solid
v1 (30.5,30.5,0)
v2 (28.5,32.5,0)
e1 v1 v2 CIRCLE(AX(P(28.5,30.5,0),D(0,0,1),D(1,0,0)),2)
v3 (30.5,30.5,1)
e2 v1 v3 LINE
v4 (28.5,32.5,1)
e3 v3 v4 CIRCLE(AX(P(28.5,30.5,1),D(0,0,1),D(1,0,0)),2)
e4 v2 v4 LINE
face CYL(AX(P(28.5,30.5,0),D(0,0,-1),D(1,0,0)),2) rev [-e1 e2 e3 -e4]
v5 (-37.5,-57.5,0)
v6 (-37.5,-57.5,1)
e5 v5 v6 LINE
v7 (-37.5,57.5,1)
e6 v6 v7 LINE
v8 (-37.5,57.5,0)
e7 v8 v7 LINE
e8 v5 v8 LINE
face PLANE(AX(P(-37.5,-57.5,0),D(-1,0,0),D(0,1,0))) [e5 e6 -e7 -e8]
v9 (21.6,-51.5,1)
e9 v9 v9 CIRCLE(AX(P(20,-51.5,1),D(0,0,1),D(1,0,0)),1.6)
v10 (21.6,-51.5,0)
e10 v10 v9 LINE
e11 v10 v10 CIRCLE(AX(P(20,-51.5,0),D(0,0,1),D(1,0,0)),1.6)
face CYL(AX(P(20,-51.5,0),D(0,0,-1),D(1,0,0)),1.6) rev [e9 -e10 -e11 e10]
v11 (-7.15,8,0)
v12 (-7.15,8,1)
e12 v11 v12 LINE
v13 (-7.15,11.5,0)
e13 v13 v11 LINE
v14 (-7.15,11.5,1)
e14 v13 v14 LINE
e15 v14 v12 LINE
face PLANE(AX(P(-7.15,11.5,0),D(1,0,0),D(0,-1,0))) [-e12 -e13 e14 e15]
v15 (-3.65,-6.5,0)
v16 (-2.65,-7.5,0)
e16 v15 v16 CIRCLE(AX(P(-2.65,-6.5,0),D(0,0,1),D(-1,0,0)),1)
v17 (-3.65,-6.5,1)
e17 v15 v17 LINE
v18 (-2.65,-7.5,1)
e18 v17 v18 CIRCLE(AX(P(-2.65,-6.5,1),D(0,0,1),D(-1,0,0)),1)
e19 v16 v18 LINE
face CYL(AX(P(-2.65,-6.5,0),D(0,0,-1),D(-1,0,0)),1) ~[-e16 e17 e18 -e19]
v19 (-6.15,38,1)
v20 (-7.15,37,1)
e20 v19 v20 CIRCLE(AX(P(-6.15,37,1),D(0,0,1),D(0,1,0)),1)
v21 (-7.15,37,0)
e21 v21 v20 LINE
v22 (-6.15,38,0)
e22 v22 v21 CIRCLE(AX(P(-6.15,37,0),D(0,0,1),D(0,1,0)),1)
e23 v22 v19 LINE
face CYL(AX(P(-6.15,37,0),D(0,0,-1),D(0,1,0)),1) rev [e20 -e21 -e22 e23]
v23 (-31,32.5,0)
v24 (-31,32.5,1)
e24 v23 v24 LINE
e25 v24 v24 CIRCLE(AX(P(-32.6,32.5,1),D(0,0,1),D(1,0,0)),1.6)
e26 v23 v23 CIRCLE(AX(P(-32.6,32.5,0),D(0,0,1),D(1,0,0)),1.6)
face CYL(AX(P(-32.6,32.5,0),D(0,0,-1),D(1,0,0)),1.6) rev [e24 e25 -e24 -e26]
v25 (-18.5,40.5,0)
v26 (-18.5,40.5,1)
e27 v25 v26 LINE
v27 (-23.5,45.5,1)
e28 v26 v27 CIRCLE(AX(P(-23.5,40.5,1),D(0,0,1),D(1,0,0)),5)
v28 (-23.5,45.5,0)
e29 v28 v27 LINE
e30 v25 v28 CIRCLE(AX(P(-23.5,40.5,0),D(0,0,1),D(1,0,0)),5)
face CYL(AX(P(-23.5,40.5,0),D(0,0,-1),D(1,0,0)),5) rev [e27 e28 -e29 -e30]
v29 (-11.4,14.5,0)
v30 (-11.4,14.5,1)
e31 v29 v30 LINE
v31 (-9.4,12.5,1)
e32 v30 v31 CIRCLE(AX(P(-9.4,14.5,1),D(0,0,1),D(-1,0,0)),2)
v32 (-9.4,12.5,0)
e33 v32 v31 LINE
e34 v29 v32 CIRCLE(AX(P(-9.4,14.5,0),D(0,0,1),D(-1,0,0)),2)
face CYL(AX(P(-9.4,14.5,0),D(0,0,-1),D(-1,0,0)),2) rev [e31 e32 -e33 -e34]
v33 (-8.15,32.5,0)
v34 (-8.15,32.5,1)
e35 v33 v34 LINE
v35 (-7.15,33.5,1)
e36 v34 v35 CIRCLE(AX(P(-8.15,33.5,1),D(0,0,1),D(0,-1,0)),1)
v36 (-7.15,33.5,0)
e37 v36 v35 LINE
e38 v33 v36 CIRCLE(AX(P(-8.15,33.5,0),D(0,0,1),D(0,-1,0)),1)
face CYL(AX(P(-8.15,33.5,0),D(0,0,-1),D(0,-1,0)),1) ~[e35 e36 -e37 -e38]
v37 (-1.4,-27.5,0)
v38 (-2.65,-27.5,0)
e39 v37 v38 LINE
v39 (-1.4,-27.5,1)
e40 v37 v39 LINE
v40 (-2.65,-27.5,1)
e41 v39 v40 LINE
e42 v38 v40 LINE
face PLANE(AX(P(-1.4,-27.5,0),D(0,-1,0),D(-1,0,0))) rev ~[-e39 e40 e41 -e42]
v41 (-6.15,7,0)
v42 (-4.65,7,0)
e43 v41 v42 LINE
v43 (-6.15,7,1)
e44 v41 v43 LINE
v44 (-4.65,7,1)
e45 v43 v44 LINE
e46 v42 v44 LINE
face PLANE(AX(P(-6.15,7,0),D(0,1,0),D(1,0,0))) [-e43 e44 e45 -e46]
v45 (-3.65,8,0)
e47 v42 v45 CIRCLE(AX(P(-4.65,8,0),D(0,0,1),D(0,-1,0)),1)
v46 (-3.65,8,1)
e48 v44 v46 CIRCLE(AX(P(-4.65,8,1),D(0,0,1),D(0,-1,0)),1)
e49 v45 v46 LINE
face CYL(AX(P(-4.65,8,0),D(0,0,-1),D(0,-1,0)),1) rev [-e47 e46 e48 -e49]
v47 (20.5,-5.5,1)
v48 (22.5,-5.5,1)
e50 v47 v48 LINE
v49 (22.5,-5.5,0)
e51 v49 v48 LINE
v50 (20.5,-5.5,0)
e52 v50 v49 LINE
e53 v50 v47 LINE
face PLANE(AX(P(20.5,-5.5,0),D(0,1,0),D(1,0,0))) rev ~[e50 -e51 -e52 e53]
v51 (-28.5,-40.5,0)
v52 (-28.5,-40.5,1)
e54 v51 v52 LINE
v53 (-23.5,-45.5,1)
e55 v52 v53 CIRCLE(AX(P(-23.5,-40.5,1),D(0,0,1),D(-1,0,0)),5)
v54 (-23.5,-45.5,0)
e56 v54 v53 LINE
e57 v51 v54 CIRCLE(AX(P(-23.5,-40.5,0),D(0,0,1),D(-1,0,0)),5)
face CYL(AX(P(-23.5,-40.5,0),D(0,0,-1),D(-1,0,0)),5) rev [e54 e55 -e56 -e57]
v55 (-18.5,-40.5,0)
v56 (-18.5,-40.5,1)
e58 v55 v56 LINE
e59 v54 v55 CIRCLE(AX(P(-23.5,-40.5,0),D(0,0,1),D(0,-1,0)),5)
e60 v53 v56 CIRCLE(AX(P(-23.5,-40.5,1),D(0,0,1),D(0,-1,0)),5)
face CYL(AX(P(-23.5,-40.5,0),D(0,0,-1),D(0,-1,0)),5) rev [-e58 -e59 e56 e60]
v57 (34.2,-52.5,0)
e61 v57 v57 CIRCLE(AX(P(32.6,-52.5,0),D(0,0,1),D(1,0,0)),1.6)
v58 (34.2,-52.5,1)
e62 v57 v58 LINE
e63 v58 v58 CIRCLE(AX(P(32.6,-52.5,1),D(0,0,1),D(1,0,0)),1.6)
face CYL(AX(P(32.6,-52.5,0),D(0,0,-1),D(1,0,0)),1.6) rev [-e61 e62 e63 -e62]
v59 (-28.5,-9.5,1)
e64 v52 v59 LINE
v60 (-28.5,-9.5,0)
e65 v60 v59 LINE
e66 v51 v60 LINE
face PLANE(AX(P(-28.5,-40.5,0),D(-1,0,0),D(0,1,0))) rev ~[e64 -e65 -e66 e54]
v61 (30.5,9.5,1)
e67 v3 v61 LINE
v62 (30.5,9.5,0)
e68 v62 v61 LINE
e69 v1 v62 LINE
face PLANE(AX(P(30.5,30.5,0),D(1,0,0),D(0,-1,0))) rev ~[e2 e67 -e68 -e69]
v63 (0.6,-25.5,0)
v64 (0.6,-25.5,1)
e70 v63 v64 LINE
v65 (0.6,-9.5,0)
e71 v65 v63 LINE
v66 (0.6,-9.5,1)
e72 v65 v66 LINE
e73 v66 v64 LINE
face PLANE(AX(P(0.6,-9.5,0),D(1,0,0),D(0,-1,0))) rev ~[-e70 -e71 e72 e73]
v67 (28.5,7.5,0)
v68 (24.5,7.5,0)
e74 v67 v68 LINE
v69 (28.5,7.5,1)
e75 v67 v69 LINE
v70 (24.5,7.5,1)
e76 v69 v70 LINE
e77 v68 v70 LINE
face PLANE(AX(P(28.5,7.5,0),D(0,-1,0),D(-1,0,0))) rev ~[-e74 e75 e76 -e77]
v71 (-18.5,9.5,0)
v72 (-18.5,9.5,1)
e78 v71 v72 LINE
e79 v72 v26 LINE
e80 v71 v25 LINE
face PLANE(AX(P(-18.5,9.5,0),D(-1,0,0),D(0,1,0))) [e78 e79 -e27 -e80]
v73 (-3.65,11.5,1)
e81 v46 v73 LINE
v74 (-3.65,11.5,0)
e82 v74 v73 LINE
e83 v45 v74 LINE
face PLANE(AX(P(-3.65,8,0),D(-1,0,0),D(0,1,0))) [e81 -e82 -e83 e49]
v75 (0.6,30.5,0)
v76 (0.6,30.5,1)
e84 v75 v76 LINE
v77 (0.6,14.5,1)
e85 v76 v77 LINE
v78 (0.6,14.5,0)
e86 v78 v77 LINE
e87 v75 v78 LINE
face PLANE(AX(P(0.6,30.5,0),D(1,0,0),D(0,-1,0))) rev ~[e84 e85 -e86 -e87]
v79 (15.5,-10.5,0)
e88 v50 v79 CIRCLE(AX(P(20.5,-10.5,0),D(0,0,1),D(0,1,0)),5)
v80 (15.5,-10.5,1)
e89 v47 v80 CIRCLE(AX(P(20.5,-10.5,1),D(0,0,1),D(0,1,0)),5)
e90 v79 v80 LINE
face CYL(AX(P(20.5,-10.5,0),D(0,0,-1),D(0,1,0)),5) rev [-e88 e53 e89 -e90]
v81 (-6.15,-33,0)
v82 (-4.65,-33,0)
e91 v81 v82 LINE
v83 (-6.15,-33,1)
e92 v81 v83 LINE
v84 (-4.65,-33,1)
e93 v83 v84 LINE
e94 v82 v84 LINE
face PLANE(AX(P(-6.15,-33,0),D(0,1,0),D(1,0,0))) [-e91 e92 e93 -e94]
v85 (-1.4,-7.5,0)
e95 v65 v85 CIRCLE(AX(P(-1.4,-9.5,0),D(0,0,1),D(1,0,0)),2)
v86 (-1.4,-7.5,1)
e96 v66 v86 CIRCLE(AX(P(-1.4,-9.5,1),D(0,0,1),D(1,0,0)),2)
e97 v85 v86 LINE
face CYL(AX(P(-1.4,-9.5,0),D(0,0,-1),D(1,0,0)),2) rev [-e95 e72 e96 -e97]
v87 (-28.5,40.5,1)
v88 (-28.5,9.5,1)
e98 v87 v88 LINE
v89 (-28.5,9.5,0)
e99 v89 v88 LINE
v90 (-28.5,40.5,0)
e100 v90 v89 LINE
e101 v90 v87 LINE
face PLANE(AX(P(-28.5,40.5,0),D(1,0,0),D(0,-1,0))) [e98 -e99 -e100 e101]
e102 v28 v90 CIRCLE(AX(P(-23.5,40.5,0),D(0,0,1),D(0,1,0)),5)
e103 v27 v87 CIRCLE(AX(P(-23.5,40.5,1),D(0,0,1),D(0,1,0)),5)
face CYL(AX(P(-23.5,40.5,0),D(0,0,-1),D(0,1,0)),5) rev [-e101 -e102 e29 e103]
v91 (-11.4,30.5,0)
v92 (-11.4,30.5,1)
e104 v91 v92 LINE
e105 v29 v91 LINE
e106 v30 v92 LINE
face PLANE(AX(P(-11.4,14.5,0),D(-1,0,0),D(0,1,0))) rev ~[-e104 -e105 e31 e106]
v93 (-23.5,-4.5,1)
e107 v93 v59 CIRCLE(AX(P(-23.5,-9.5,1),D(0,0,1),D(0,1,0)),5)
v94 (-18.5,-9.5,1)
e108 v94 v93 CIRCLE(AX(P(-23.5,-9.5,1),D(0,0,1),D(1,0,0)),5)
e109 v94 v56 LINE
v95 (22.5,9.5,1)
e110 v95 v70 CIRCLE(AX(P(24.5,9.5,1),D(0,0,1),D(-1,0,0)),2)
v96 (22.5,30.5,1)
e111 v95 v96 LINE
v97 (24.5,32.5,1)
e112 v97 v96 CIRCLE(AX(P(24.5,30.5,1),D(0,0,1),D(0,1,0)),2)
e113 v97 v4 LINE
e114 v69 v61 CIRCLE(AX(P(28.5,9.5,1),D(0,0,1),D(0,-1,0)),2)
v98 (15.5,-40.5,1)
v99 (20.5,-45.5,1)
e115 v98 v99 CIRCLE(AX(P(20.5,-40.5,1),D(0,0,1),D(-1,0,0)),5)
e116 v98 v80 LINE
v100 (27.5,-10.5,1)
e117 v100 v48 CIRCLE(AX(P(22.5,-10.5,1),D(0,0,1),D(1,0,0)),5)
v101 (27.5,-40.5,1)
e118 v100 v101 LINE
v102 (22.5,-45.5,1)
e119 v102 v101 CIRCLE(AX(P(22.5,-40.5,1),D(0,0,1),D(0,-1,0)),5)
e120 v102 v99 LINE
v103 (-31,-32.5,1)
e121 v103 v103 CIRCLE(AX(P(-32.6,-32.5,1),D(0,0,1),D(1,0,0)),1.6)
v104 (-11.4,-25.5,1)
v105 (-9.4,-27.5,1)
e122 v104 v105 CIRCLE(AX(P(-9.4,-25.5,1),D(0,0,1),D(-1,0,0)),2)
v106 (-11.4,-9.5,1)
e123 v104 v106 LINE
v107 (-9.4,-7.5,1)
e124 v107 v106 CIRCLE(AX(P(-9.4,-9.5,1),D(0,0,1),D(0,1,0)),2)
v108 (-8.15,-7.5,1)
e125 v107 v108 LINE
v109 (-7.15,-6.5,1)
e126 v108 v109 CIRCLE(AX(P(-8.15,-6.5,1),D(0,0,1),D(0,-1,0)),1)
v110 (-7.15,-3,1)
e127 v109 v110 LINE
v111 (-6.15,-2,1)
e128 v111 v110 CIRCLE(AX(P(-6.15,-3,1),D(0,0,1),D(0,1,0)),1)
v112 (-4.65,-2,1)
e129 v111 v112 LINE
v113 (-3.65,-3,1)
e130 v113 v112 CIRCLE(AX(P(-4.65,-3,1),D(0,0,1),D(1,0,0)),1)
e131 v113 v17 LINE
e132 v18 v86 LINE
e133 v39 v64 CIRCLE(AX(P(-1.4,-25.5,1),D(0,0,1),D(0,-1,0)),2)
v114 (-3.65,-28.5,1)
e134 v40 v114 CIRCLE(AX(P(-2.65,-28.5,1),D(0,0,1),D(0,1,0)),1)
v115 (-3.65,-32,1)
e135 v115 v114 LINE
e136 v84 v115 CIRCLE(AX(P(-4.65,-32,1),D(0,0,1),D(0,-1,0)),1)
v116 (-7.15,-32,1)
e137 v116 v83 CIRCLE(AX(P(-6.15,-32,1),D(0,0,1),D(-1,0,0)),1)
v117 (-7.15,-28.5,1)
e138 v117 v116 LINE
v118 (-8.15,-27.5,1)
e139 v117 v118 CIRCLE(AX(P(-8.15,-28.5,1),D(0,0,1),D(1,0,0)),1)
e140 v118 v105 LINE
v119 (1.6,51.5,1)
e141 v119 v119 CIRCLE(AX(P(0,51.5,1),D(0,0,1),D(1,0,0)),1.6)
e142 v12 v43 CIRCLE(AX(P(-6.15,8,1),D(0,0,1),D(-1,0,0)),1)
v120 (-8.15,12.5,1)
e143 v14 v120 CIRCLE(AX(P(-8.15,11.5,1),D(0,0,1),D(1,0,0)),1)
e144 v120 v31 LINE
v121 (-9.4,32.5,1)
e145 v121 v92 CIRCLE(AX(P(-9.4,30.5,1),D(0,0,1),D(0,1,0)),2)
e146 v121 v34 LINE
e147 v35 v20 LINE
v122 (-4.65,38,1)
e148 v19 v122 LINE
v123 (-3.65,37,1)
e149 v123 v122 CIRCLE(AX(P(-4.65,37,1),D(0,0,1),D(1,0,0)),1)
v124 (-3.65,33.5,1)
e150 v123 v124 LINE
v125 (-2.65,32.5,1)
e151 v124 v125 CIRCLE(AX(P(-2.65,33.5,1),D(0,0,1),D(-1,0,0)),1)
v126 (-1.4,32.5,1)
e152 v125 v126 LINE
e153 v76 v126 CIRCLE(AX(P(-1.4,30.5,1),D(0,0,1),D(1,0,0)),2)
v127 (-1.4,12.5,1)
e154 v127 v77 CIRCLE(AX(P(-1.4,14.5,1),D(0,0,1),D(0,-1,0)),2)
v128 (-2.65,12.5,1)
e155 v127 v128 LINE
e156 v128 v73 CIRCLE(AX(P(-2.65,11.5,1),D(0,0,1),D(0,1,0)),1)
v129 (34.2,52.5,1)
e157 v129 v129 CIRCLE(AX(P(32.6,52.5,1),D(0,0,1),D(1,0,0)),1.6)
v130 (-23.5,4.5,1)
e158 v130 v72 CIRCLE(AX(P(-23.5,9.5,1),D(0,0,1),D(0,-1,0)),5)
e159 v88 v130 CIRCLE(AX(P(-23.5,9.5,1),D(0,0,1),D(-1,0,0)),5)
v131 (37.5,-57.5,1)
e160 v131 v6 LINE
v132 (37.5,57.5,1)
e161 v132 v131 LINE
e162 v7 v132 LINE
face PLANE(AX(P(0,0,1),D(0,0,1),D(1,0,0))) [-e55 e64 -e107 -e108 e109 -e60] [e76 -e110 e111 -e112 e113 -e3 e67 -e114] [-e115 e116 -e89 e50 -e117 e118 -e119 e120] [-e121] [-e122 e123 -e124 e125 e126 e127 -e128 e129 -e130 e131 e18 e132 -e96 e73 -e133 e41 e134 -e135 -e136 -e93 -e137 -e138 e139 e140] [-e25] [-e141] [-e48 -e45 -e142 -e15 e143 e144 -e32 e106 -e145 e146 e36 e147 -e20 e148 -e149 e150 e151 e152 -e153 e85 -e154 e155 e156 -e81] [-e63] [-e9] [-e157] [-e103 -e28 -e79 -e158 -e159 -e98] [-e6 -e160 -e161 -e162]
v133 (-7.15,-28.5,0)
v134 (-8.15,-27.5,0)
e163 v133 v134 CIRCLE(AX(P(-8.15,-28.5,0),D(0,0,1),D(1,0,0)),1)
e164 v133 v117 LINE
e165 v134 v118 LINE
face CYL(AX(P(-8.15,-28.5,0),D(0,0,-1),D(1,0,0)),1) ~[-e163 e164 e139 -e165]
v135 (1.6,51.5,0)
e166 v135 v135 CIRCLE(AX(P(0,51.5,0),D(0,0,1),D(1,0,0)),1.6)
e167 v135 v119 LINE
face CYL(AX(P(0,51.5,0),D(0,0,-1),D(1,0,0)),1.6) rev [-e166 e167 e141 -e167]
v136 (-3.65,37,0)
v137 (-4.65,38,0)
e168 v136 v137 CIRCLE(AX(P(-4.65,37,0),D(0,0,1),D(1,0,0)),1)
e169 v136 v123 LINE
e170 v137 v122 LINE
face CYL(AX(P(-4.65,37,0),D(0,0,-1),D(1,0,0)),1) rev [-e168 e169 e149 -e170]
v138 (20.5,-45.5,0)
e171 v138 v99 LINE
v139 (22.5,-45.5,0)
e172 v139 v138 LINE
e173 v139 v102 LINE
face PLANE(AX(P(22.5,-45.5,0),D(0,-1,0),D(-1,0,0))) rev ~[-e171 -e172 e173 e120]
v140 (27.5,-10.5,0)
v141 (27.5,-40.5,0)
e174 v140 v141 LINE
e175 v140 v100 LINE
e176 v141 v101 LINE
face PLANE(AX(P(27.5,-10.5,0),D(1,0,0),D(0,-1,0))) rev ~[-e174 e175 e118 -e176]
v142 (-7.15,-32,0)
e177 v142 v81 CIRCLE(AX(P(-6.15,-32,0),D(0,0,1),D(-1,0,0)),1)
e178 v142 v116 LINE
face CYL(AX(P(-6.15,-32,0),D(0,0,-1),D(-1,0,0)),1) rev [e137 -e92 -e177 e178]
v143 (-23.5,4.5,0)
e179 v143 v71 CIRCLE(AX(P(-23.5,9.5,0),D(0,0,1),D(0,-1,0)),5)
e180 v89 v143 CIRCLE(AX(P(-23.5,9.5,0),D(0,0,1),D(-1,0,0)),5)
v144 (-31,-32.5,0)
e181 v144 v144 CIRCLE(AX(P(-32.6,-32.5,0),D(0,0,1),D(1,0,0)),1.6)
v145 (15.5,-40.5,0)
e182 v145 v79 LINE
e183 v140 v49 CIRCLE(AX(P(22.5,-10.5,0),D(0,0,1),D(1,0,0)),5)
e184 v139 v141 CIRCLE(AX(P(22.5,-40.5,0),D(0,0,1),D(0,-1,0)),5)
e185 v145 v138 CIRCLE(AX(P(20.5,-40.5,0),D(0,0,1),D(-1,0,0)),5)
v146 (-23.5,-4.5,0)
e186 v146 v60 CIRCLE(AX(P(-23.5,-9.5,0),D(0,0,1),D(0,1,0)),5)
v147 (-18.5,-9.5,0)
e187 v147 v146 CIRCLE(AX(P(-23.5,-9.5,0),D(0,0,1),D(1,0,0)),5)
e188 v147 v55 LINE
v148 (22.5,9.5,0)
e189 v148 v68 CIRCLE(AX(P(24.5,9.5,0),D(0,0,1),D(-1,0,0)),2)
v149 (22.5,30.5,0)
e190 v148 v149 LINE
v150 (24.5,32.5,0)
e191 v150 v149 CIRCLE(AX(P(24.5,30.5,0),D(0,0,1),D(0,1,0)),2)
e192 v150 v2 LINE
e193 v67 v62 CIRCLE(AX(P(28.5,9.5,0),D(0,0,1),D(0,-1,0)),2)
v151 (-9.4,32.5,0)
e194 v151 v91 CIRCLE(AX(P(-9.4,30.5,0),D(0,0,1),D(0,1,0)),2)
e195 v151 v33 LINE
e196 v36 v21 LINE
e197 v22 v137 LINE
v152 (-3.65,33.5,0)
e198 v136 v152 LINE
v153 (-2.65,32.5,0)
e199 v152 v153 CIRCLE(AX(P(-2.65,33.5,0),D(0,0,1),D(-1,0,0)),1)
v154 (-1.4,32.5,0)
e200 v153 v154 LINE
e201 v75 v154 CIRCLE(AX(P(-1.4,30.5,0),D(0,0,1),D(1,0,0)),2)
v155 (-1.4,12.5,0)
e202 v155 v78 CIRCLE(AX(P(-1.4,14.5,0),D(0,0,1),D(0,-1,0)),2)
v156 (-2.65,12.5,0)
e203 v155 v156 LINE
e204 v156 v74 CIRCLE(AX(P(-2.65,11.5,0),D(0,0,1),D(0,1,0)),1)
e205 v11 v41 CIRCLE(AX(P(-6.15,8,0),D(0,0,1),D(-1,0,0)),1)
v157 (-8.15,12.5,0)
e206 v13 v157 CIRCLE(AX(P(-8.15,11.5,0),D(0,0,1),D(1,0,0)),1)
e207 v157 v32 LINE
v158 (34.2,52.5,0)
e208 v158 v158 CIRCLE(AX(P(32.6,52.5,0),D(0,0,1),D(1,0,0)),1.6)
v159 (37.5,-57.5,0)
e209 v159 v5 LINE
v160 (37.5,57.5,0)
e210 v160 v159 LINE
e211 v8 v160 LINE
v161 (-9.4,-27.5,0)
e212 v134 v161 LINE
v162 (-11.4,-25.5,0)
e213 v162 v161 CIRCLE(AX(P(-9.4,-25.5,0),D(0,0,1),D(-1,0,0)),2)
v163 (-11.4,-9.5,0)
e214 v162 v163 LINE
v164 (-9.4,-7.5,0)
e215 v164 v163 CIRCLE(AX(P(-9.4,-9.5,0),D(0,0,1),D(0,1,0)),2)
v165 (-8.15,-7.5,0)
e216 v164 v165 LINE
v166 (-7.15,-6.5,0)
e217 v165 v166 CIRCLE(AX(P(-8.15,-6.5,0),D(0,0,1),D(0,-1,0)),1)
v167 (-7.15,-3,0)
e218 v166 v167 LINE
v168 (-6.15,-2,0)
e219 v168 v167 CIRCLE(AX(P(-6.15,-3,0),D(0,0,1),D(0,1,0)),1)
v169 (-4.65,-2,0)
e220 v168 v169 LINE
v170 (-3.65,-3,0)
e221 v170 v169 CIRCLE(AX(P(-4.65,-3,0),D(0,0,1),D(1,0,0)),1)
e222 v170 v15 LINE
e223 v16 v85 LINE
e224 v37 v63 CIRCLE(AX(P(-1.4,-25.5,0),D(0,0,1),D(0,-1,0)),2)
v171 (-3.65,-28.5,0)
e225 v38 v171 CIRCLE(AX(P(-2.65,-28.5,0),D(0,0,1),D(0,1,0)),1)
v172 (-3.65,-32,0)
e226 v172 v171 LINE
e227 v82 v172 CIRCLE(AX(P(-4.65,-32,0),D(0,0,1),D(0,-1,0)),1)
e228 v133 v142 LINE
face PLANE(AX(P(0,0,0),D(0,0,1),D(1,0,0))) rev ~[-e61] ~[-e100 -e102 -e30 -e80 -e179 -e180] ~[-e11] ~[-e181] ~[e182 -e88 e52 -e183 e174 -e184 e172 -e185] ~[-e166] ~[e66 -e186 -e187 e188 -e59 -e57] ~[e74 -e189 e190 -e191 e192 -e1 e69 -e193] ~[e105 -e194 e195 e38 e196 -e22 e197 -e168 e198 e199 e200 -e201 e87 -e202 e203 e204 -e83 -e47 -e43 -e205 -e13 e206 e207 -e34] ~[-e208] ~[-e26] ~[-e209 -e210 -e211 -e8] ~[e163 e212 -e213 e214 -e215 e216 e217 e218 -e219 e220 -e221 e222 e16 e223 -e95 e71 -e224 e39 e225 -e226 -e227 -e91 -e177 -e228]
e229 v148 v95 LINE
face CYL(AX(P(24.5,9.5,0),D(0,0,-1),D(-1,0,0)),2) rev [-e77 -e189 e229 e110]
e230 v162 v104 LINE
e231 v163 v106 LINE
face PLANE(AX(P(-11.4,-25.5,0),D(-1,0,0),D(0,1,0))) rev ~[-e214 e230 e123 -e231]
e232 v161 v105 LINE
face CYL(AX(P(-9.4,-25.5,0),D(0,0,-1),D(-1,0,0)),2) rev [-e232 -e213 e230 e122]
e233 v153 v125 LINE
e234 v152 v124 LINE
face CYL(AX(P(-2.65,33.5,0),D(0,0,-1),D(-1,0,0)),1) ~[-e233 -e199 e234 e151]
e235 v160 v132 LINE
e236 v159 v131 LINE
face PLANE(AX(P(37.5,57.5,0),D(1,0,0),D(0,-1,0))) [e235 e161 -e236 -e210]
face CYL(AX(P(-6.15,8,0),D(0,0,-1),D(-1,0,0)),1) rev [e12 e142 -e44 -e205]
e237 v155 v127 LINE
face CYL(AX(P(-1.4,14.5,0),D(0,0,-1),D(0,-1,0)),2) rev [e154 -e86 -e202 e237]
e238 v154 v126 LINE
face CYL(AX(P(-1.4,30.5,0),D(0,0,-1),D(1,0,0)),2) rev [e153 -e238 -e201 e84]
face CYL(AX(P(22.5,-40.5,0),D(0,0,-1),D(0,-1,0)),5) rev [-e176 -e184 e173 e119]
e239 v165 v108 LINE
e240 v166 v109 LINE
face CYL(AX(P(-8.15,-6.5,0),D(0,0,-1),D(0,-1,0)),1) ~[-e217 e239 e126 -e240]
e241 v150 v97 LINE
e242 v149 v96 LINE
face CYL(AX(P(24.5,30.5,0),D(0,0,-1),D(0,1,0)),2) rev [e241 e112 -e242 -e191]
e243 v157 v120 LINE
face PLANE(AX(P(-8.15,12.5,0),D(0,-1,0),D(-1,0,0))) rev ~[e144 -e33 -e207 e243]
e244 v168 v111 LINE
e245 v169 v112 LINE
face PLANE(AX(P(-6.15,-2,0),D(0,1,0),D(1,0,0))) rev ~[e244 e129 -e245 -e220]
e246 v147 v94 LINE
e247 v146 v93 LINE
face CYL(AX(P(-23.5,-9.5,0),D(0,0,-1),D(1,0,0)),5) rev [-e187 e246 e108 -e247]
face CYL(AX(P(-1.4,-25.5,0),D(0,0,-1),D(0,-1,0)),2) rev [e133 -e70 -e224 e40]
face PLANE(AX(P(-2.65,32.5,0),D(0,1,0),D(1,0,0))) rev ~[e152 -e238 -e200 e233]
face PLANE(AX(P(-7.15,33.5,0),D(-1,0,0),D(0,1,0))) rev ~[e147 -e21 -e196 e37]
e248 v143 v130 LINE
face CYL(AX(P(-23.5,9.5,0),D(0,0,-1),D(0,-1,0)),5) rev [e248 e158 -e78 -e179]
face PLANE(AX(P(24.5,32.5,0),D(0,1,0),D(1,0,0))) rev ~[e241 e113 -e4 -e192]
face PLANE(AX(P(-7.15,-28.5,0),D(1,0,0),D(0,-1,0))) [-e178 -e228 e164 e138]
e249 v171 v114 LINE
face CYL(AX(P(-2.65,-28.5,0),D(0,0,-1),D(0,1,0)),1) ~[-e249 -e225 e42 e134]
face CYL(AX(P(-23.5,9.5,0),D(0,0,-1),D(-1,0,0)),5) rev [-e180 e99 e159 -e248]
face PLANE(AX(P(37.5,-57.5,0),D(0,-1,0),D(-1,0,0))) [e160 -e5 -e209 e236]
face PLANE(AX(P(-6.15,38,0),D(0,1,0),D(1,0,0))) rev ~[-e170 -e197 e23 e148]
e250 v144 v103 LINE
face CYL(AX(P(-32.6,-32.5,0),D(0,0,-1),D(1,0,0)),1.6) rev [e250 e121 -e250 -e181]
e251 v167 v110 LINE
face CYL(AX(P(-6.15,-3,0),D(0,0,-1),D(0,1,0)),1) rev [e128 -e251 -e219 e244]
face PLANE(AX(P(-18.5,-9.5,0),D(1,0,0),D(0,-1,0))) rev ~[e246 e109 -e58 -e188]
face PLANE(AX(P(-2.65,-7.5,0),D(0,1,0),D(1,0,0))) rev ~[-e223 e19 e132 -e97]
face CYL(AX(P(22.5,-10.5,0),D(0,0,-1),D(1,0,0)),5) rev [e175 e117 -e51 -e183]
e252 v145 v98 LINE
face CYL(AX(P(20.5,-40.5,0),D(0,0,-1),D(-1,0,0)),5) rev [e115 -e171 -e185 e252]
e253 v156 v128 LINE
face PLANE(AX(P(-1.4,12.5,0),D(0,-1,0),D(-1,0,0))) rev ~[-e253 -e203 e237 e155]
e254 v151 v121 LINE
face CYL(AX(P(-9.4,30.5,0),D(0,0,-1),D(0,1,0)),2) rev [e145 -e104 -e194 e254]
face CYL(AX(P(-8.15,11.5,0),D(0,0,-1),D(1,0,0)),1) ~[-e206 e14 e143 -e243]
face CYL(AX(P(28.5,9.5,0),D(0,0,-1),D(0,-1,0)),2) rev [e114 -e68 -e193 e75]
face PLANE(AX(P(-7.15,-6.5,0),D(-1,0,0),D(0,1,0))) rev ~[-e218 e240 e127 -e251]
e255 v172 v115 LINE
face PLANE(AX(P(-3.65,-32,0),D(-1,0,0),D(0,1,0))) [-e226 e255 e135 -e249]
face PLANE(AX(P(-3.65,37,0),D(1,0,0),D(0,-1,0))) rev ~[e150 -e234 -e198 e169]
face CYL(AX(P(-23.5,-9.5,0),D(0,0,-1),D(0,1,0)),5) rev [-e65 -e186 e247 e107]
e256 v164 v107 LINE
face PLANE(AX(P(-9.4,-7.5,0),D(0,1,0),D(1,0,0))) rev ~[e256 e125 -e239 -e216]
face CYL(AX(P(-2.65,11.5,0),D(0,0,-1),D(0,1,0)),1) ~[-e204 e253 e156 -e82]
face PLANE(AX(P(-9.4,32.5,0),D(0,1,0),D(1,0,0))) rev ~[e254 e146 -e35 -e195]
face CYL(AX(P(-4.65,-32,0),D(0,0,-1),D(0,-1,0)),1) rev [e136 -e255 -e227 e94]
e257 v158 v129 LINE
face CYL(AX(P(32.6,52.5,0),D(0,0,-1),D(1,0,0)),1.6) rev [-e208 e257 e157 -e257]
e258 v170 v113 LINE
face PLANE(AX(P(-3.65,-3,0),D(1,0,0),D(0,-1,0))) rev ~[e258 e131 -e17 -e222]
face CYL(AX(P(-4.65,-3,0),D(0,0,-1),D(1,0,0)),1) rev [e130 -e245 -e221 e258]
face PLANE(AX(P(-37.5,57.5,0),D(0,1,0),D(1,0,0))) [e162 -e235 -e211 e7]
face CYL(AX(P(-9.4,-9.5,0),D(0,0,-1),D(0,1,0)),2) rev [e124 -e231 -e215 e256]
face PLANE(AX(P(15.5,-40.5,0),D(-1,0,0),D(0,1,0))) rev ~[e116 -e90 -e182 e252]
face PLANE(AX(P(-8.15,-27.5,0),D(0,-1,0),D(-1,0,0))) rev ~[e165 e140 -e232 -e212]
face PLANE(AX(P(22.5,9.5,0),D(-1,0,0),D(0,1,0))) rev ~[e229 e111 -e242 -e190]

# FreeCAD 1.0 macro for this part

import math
import FreeCAD as App
import Part
import Sketcher
Q = App.Units.Quantity


def add_polygon(sketch, points):
    """Adds a closed chain of lines whose ends are joined by coincident constraints."""
    first, n = sketch.GeometryCount, len(points)
    for a, b in zip(points, points[1:] + points[:1]):
        sketch.addGeometry(Part.LineSegment(App.Vector(*a, 0), App.Vector(*b, 0)), False)
    for i in range(n):
        sketch.addConstraint(Sketcher.Constraint("Coincident", first + i, 2, first + (i + 1) % n, 1))

doc = App.newDocument("Part")
body = doc.addObject("PartDesign::Body", "Body")

# Sketch on XY plane
sketch1 = body.newObject("Sketcher::SketchObject", "Sketch")
sketch1.AttachmentSupport = (doc.getObject("XY_Plane"), [""])
sketch1.MapMode = "FlatFace"
add_polygon(sketch1, [(37.5, 57.5), (-37.5, 57.5), (-37.5, -57.5), (37.5, -57.5)])  # lines 0-3
sketch1.addGeometry(Part.Circle(App.Vector(-32.6, -32.5, 0), App.Vector(0, 0, 1), 1.6), False)  # 4
sketch1.addGeometry(Part.ArcOfCircle(Part.Circle(App.Vector(-23.5, -40.5, 0), App.Vector(0, 0, 1), 5), math.radians(180), math.radians(360)), False)  # 5
sketch1.addGeometry(Part.LineSegment(App.Vector(-28.5, -40.5, 0), App.Vector(-28.5, -9.5, 0)), False)  # 6
sketch1.addGeometry(Part.ArcOfCircle(Part.Circle(App.Vector(-23.5, -9.5, 0), App.Vector(0, 0, 1), 5), math.radians(0), math.radians(180)), False)  # 7
sketch1.addGeometry(Part.LineSegment(App.Vector(-18.5, -9.5, 0), App.Vector(-18.5, -40.5, 0)), False)  # 8
sketch1.addGeometry(Part.ArcOfCircle(Part.Circle(App.Vector(-1.4, -9.5, 0), App.Vector(0, 0, 1), 2), math.radians(0), math.radians(90)), False)  # 9
sketch1.addGeometry(Part.LineSegment(App.Vector(0.6, -9.5, 0), App.Vector(0.6, -25.5, 0)), False)  # 10
sketch1.addGeometry(Part.ArcOfCircle(Part.Circle(App.Vector(-1.4, -25.5, 0), App.Vector(0, 0, 1), 2), math.radians(-90), math.radians(0)), False)  # 11
sketch1.addGeometry(Part.LineSegment(App.Vector(-1.4, -27.5, 0), App.Vector(-2.65, -27.5, 0)), False)  # 12
sketch1.addGeometry(Part.ArcOfCircle(Part.Circle(App.Vector(-2.65, -28.5, 0), App.Vector(0, 0, 1), 1), math.radians(90), math.radians(180)), False)  # 13
sketch1.addGeometry(Part.LineSegment(App.Vector(-3.65, -28.5, 0), App.Vector(-3.65, -32, 0)), False)  # 14
sketch1.addGeometry(Part.ArcOfCircle(Part.Circle(App.Vector(-4.65, -32, 0), App.Vector(0, 0, 1), 1), math.radians(-90), math.radians(0)), False)  # 15
sketch1.addGeometry(Part.LineSegment(App.Vector(-4.65, -33, 0), App.Vector(-6.15, -33, 0)), False)  # 16
sketch1.addGeometry(Part.ArcOfCircle(Part.Circle(App.Vector(-6.15, -32, 0), App.Vector(0, 0, 1), 1), math.radians(180), math.radians(270)), False)  # 17
sketch1.addGeometry(Part.LineSegment(App.Vector(-7.15, -32, 0), App.Vector(-7.15, -28.5, 0)), False)  # 18
sketch1.addGeometry(Part.ArcOfCircle(Part.Circle(App.Vector(-8.15, -28.5, 0), App.Vector(0, 0, 1), 1), math.radians(0), math.radians(90)), False)  # 19
sketch1.addGeometry(Part.LineSegment(App.Vector(-8.15, -27.5, 0), App.Vector(-9.4, -27.5, 0)), False)  # 20
sketch1.addGeometry(Part.ArcOfCircle(Part.Circle(App.Vector(-9.4, -25.5, 0), App.Vector(0, 0, 1), 2), math.radians(180), math.radians(270)), False)  # 21
sketch1.addGeometry(Part.LineSegment(App.Vector(-11.4, -25.5, 0), App.Vector(-11.4, -9.5, 0)), False)  # 22
sketch1.addGeometry(Part.ArcOfCircle(Part.Circle(App.Vector(-9.4, -9.5, 0), App.Vector(0, 0, 1), 2), math.radians(90), math.radians(180)), False)  # 23
sketch1.addGeometry(Part.LineSegment(App.Vector(-9.4, -7.5, 0), App.Vector(-8.15, -7.5, 0)), False)  # 24
sketch1.addGeometry(Part.ArcOfCircle(Part.Circle(App.Vector(-8.15, -6.5, 0), App.Vector(0, 0, 1), 1), math.radians(-90), math.radians(0)), False)  # 25
sketch1.addGeometry(Part.LineSegment(App.Vector(-7.15, -6.5, 0), App.Vector(-7.15, -3, 0)), False)  # 26
sketch1.addGeometry(Part.ArcOfCircle(Part.Circle(App.Vector(-6.15, -3, 0), App.Vector(0, 0, 1), 1), math.radians(90), math.radians(180)), False)  # 27
sketch1.addGeometry(Part.LineSegment(App.Vector(-6.15, -2, 0), App.Vector(-4.65, -2, 0)), False)  # 28
sketch1.addGeometry(Part.ArcOfCircle(Part.Circle(App.Vector(-4.65, -3, 0), App.Vector(0, 0, 1), 1), math.radians(0), math.radians(90)), False)  # 29
sketch1.addGeometry(Part.LineSegment(App.Vector(-3.65, -3, 0), App.Vector(-3.65, -6.5, 0)), False)  # 30
sketch1.addGeometry(Part.ArcOfCircle(Part.Circle(App.Vector(-2.65, -6.5, 0), App.Vector(0, 0, 1), 1), math.radians(180), math.radians(270)), False)  # 31
sketch1.addGeometry(Part.LineSegment(App.Vector(-2.65, -7.5, 0), App.Vector(-1.4, -7.5, 0)), False)  # 32
sketch1.addGeometry(Part.Circle(App.Vector(20, -51.5, 0), App.Vector(0, 0, 1), 1.6), False)  # 33
sketch1.addGeometry(Part.Circle(App.Vector(32.6, -52.5, 0), App.Vector(0, 0, 1), 1.6), False)  # 34
sketch1.addGeometry(Part.ArcOfCircle(Part.Circle(App.Vector(22.5, -40.5, 0), App.Vector(0, 0, 1), 5), math.radians(-90), math.radians(0)), False)  # 35
sketch1.addGeometry(Part.LineSegment(App.Vector(22.5, -45.5, 0), App.Vector(20.5, -45.5, 0)), False)  # 36
sketch1.addGeometry(Part.ArcOfCircle(Part.Circle(App.Vector(20.5, -40.5, 0), App.Vector(0, 0, 1), 5), math.radians(180), math.radians(270)), False)  # 37
sketch1.addGeometry(Part.LineSegment(App.Vector(15.5, -40.5, 0), App.Vector(15.5, -10.5, 0)), False)  # 38
sketch1.addGeometry(Part.ArcOfCircle(Part.Circle(App.Vector(20.5, -10.5, 0), App.Vector(0, 0, 1), 5), math.radians(90), math.radians(180)), False)  # 39
sketch1.addGeometry(Part.LineSegment(App.Vector(20.5, -5.5, 0), App.Vector(22.5, -5.5, 0)), False)  # 40
sketch1.addGeometry(Part.ArcOfCircle(Part.Circle(App.Vector(22.5, -10.5, 0), App.Vector(0, 0, 1), 5), math.radians(0), math.radians(90)), False)  # 41
sketch1.addGeometry(Part.LineSegment(App.Vector(27.5, -10.5, 0), App.Vector(27.5, -40.5, 0)), False)  # 42
sketch1.addGeometry(Part.LineSegment(App.Vector(-28.5, 9.5, 0), App.Vector(-28.5, 40.5, 0)), False)  # 43
sketch1.addGeometry(Part.ArcOfCircle(Part.Circle(App.Vector(-23.5, 40.5, 0), App.Vector(0, 0, 1), 5), math.radians(0), math.radians(180)), False)  # 44
sketch1.addGeometry(Part.LineSegment(App.Vector(-18.5, 40.5, 0), App.Vector(-18.5, 9.5, 0)), False)  # 45
sketch1.addGeometry(Part.ArcOfCircle(Part.Circle(App.Vector(-23.5, 9.5, 0), App.Vector(0, 0, 1), 5), math.radians(180), math.radians(360)), False)  # 46
sketch1.addGeometry(Part.LineSegment(App.Vector(-7.15, 8, 0), App.Vector(-7.15, 11.5, 0)), False)  # 47
sketch1.addGeometry(Part.ArcOfCircle(Part.Circle(App.Vector(-8.15, 11.5, 0), App.Vector(0, 0, 1), 1), math.radians(0), math.radians(90)), False)  # 48
sketch1.addGeometry(Part.LineSegment(App.Vector(-8.15, 12.5, 0), App.Vector(-9.4, 12.5, 0)), False)  # 49
sketch1.addGeometry(Part.ArcOfCircle(Part.Circle(App.Vector(-9.4, 14.5, 0), App.Vector(0, 0, 1), 2), math.radians(180), math.radians(270)), False)  # 50
sketch1.addGeometry(Part.LineSegment(App.Vector(-11.4, 14.5, 0), App.Vector(-11.4, 30.5, 0)), False)  # 51
sketch1.addGeometry(Part.ArcOfCircle(Part.Circle(App.Vector(-9.4, 30.5, 0), App.Vector(0, 0, 1), 2), math.radians(90), math.radians(180)), False)  # 52
sketch1.addGeometry(Part.LineSegment(App.Vector(-9.4, 32.5, 0), App.Vector(-8.15, 32.5, 0)), False)  # 53
sketch1.addGeometry(Part.ArcOfCircle(Part.Circle(App.Vector(-8.15, 33.5, 0), App.Vector(0, 0, 1), 1), math.radians(-90), math.radians(0)), False)  # 54
sketch1.addGeometry(Part.LineSegment(App.Vector(-7.15, 33.5, 0), App.Vector(-7.15, 37, 0)), False)  # 55
sketch1.addGeometry(Part.ArcOfCircle(Part.Circle(App.Vector(-6.15, 37, 0), App.Vector(0, 0, 1), 1), math.radians(90), math.radians(180)), False)  # 56
sketch1.addGeometry(Part.LineSegment(App.Vector(-6.15, 38, 0), App.Vector(-4.65, 38, 0)), False)  # 57
sketch1.addGeometry(Part.ArcOfCircle(Part.Circle(App.Vector(-4.65, 37, 0), App.Vector(0, 0, 1), 1), math.radians(0), math.radians(90)), False)  # 58
sketch1.addGeometry(Part.LineSegment(App.Vector(-3.65, 37, 0), App.Vector(-3.65, 33.5, 0)), False)  # 59
sketch1.addGeometry(Part.ArcOfCircle(Part.Circle(App.Vector(-2.65, 33.5, 0), App.Vector(0, 0, 1), 1), math.radians(180), math.radians(270)), False)  # 60
sketch1.addGeometry(Part.LineSegment(App.Vector(-2.65, 32.5, 0), App.Vector(-1.4, 32.5, 0)), False)  # 61
sketch1.addGeometry(Part.ArcOfCircle(Part.Circle(App.Vector(-1.4, 30.5, 0), App.Vector(0, 0, 1), 2), math.radians(0), math.radians(90)), False)  # 62
sketch1.addGeometry(Part.LineSegment(App.Vector(0.6, 30.5, 0), App.Vector(0.6, 14.5, 0)), False)  # 63
sketch1.addGeometry(Part.ArcOfCircle(Part.Circle(App.Vector(-1.4, 14.5, 0), App.Vector(0, 0, 1), 2), math.radians(-90), math.radians(0)), False)  # 64
sketch1.addGeometry(Part.LineSegment(App.Vector(-1.4, 12.5, 0), App.Vector(-2.65, 12.5, 0)), False)  # 65
sketch1.addGeometry(Part.ArcOfCircle(Part.Circle(App.Vector(-2.65, 11.5, 0), App.Vector(0, 0, 1), 1), math.radians(90), math.radians(180)), False)  # 66
sketch1.addGeometry(Part.LineSegment(App.Vector(-3.65, 11.5, 0), App.Vector(-3.65, 8, 0)), False)  # 67
sketch1.addGeometry(Part.ArcOfCircle(Part.Circle(App.Vector(-4.65, 8, 0), App.Vector(0, 0, 1), 1), math.radians(-90), math.radians(0)), False)  # 68
sketch1.addGeometry(Part.LineSegment(App.Vector(-4.65, 7, 0), App.Vector(-6.15, 7, 0)), False)  # 69
sketch1.addGeometry(Part.ArcOfCircle(Part.Circle(App.Vector(-6.15, 8, 0), App.Vector(0, 0, 1), 1), math.radians(180), math.radians(270)), False)  # 70
sketch1.addGeometry(Part.Circle(App.Vector(-32.6, 32.5, 0), App.Vector(0, 0, 1), 1.6), False)  # 71
sketch1.addGeometry(Part.ArcOfCircle(Part.Circle(App.Vector(28.5, 9.5, 0), App.Vector(0, 0, 1), 2), math.radians(-90), math.radians(0)), False)  # 72
sketch1.addGeometry(Part.LineSegment(App.Vector(28.5, 7.5, 0), App.Vector(24.5, 7.5, 0)), False)  # 73
sketch1.addGeometry(Part.ArcOfCircle(Part.Circle(App.Vector(24.5, 9.5, 0), App.Vector(0, 0, 1), 2), math.radians(180), math.radians(270)), False)  # 74
sketch1.addGeometry(Part.LineSegment(App.Vector(22.5, 9.5, 0), App.Vector(22.5, 30.5, 0)), False)  # 75
sketch1.addGeometry(Part.ArcOfCircle(Part.Circle(App.Vector(24.5, 30.5, 0), App.Vector(0, 0, 1), 2), math.radians(90), math.radians(180)), False)  # 76
sketch1.addGeometry(Part.LineSegment(App.Vector(24.5, 32.5, 0), App.Vector(28.5, 32.5, 0)), False)  # 77
sketch1.addGeometry(Part.ArcOfCircle(Part.Circle(App.Vector(28.5, 30.5, 0), App.Vector(0, 0, 1), 2), math.radians(0), math.radians(90)), False)  # 78
sketch1.addGeometry(Part.LineSegment(App.Vector(30.5, 30.5, 0), App.Vector(30.5, 9.5, 0)), False)  # 79
sketch1.addGeometry(Part.Circle(App.Vector(0, 51.5, 0), App.Vector(0, 0, 1), 1.6), False)  # 80
sketch1.addGeometry(Part.Circle(App.Vector(32.6, 52.5, 0), App.Vector(0, 0, 1), 1.6), False)  # 81
sketch1.addConstraint(Sketcher.Constraint("Tangent", 5, 1, 6, 1))
sketch1.addConstraint(Sketcher.Constraint("Tangent", 6, 2, 7, 2))
sketch1.addConstraint(Sketcher.Constraint("Tangent", 7, 1, 8, 1))
sketch1.addConstraint(Sketcher.Constraint("Tangent", 8, 2, 5, 2))
sketch1.addConstraint(Sketcher.Constraint("Tangent", 9, 1, 10, 1))
sketch1.addConstraint(Sketcher.Constraint("Tangent", 10, 2, 11, 2))
sketch1.addConstraint(Sketcher.Constraint("Tangent", 11, 1, 12, 1))
sketch1.addConstraint(Sketcher.Constraint("Tangent", 12, 2, 13, 1))
sketch1.addConstraint(Sketcher.Constraint("Tangent", 13, 2, 14, 1))
sketch1.addConstraint(Sketcher.Constraint("Tangent", 14, 2, 15, 2))
sketch1.addConstraint(Sketcher.Constraint("Tangent", 15, 1, 16, 1))
sketch1.addConstraint(Sketcher.Constraint("Tangent", 16, 2, 17, 2))
sketch1.addConstraint(Sketcher.Constraint("Tangent", 17, 1, 18, 1))
sketch1.addConstraint(Sketcher.Constraint("Tangent", 18, 2, 19, 1))
sketch1.addConstraint(Sketcher.Constraint("Tangent", 19, 2, 20, 1))
sketch1.addConstraint(Sketcher.Constraint("Tangent", 20, 2, 21, 2))
sketch1.addConstraint(Sketcher.Constraint("Tangent", 21, 1, 22, 1))
sketch1.addConstraint(Sketcher.Constraint("Tangent", 22, 2, 23, 2))
sketch1.addConstraint(Sketcher.Constraint("Tangent", 23, 1, 24, 1))
sketch1.addConstraint(Sketcher.Constraint("Tangent", 24, 2, 25, 1))
sketch1.addConstraint(Sketcher.Constraint("Tangent", 25, 2, 26, 1))
sketch1.addConstraint(Sketcher.Constraint("Tangent", 26, 2, 27, 2))
sketch1.addConstraint(Sketcher.Constraint("Tangent", 27, 1, 28, 1))
sketch1.addConstraint(Sketcher.Constraint("Tangent", 28, 2, 29, 2))
sketch1.addConstraint(Sketcher.Constraint("Tangent", 29, 1, 30, 1))
sketch1.addConstraint(Sketcher.Constraint("Tangent", 30, 2, 31, 1))
sketch1.addConstraint(Sketcher.Constraint("Tangent", 31, 2, 32, 1))
sketch1.addConstraint(Sketcher.Constraint("Tangent", 32, 2, 9, 2))
sketch1.addConstraint(Sketcher.Constraint("Tangent", 35, 1, 36, 1))
sketch1.addConstraint(Sketcher.Constraint("Tangent", 36, 2, 37, 2))
sketch1.addConstraint(Sketcher.Constraint("Tangent", 37, 1, 38, 1))
sketch1.addConstraint(Sketcher.Constraint("Tangent", 38, 2, 39, 2))
sketch1.addConstraint(Sketcher.Constraint("Tangent", 39, 1, 40, 1))
sketch1.addConstraint(Sketcher.Constraint("Tangent", 40, 2, 41, 2))
sketch1.addConstraint(Sketcher.Constraint("Tangent", 41, 1, 42, 1))
sketch1.addConstraint(Sketcher.Constraint("Tangent", 42, 2, 35, 2))
sketch1.addConstraint(Sketcher.Constraint("Tangent", 43, 2, 44, 2))
sketch1.addConstraint(Sketcher.Constraint("Tangent", 44, 1, 45, 1))
sketch1.addConstraint(Sketcher.Constraint("Tangent", 45, 2, 46, 2))
sketch1.addConstraint(Sketcher.Constraint("Tangent", 46, 1, 43, 1))
sketch1.addConstraint(Sketcher.Constraint("Tangent", 47, 2, 48, 1))
sketch1.addConstraint(Sketcher.Constraint("Tangent", 48, 2, 49, 1))
sketch1.addConstraint(Sketcher.Constraint("Tangent", 49, 2, 50, 2))
sketch1.addConstraint(Sketcher.Constraint("Tangent", 50, 1, 51, 1))
sketch1.addConstraint(Sketcher.Constraint("Tangent", 51, 2, 52, 2))
sketch1.addConstraint(Sketcher.Constraint("Tangent", 52, 1, 53, 1))
sketch1.addConstraint(Sketcher.Constraint("Tangent", 53, 2, 54, 1))
sketch1.addConstraint(Sketcher.Constraint("Tangent", 54, 2, 55, 1))
sketch1.addConstraint(Sketcher.Constraint("Tangent", 55, 2, 56, 2))
sketch1.addConstraint(Sketcher.Constraint("Tangent", 56, 1, 57, 1))
sketch1.addConstraint(Sketcher.Constraint("Tangent", 57, 2, 58, 2))
sketch1.addConstraint(Sketcher.Constraint("Tangent", 58, 1, 59, 1))
sketch1.addConstraint(Sketcher.Constraint("Tangent", 59, 2, 60, 1))
sketch1.addConstraint(Sketcher.Constraint("Tangent", 60, 2, 61, 1))
sketch1.addConstraint(Sketcher.Constraint("Tangent", 61, 2, 62, 2))
sketch1.addConstraint(Sketcher.Constraint("Tangent", 62, 1, 63, 1))
sketch1.addConstraint(Sketcher.Constraint("Tangent", 63, 2, 64, 2))
sketch1.addConstraint(Sketcher.Constraint("Tangent", 64, 1, 65, 1))
sketch1.addConstraint(Sketcher.Constraint("Tangent", 65, 2, 66, 1))
sketch1.addConstraint(Sketcher.Constraint("Tangent", 66, 2, 67, 1))
sketch1.addConstraint(Sketcher.Constraint("Tangent", 67, 2, 68, 2))
sketch1.addConstraint(Sketcher.Constraint("Tangent", 68, 1, 69, 1))
sketch1.addConstraint(Sketcher.Constraint("Tangent", 69, 2, 70, 2))
sketch1.addConstraint(Sketcher.Constraint("Tangent", 70, 1, 47, 1))
sketch1.addConstraint(Sketcher.Constraint("Tangent", 72, 1, 73, 1))
sketch1.addConstraint(Sketcher.Constraint("Tangent", 73, 2, 74, 2))
sketch1.addConstraint(Sketcher.Constraint("Tangent", 74, 1, 75, 1))
sketch1.addConstraint(Sketcher.Constraint("Tangent", 75, 2, 76, 2))
sketch1.addConstraint(Sketcher.Constraint("Tangent", 76, 1, 77, 1))
sketch1.addConstraint(Sketcher.Constraint("Tangent", 77, 2, 78, 2))
sketch1.addConstraint(Sketcher.Constraint("Tangent", 78, 1, 79, 1))
sketch1.addConstraint(Sketcher.Constraint("Tangent", 79, 2, 72, 2))
sketch1.addConstraint(Sketcher.Constraint("Horizontal", 0))
sketch1.addConstraint(Sketcher.Constraint("Vertical", 1))
sketch1.addConstraint(Sketcher.Constraint("Horizontal", 2))
sketch1.addConstraint(Sketcher.Constraint("Vertical", 3))
sketch1.addConstraint(Sketcher.Constraint("Vertical", 6))
sketch1.addConstraint(Sketcher.Constraint("Vertical", 8))
sketch1.addConstraint(Sketcher.Constraint("Vertical", 10))
sketch1.addConstraint(Sketcher.Constraint("Horizontal", 12))
sketch1.addConstraint(Sketcher.Constraint("Vertical", 14))
sketch1.addConstraint(Sketcher.Constraint("Horizontal", 16))
sketch1.addConstraint(Sketcher.Constraint("Vertical", 18))
sketch1.addConstraint(Sketcher.Constraint("Horizontal", 20))
sketch1.addConstraint(Sketcher.Constraint("Vertical", 22))
sketch1.addConstraint(Sketcher.Constraint("Horizontal", 24))
sketch1.addConstraint(Sketcher.Constraint("Vertical", 26))
sketch1.addConstraint(Sketcher.Constraint("Horizontal", 28))
sketch1.addConstraint(Sketcher.Constraint("Vertical", 30))
sketch1.addConstraint(Sketcher.Constraint("Horizontal", 32))
sketch1.addConstraint(Sketcher.Constraint("Horizontal", 36))
sketch1.addConstraint(Sketcher.Constraint("Vertical", 38))
sketch1.addConstraint(Sketcher.Constraint("Horizontal", 40))
sketch1.addConstraint(Sketcher.Constraint("Vertical", 42))
sketch1.addConstraint(Sketcher.Constraint("Vertical", 43))
sketch1.addConstraint(Sketcher.Constraint("Vertical", 45))
sketch1.addConstraint(Sketcher.Constraint("Vertical", 47))
sketch1.addConstraint(Sketcher.Constraint("Horizontal", 49))
sketch1.addConstraint(Sketcher.Constraint("Vertical", 51))
sketch1.addConstraint(Sketcher.Constraint("Horizontal", 53))
sketch1.addConstraint(Sketcher.Constraint("Vertical", 55))
sketch1.addConstraint(Sketcher.Constraint("Horizontal", 57))
sketch1.addConstraint(Sketcher.Constraint("Vertical", 59))
sketch1.addConstraint(Sketcher.Constraint("Horizontal", 61))
sketch1.addConstraint(Sketcher.Constraint("Vertical", 63))
sketch1.addConstraint(Sketcher.Constraint("Horizontal", 65))
sketch1.addConstraint(Sketcher.Constraint("Vertical", 67))
sketch1.addConstraint(Sketcher.Constraint("Horizontal", 69))
sketch1.addConstraint(Sketcher.Constraint("Horizontal", 73))
sketch1.addConstraint(Sketcher.Constraint("Vertical", 75))
sketch1.addConstraint(Sketcher.Constraint("Horizontal", 77))
sketch1.addConstraint(Sketcher.Constraint("Vertical", 79))
sketch1.addConstraint(Sketcher.Constraint("Equal", 9, 11))
sketch1.addConstraint(Sketcher.Constraint("Equal", 13, 15))
sketch1.addConstraint(Sketcher.Constraint("Equal", 15, 17))
sketch1.addConstraint(Sketcher.Constraint("Equal", 17, 19))
sketch1.addConstraint(Sketcher.Constraint("Equal", 11, 21))
sketch1.addConstraint(Sketcher.Constraint("Equal", 21, 23))
sketch1.addConstraint(Sketcher.Constraint("Equal", 19, 25))
sketch1.addConstraint(Sketcher.Constraint("Equal", 25, 27))
sketch1.addConstraint(Sketcher.Constraint("Equal", 27, 29))
sketch1.addConstraint(Sketcher.Constraint("Equal", 29, 31))
sketch1.addConstraint(Sketcher.Constraint("Equal", 4, 33))
sketch1.addConstraint(Sketcher.Constraint("Equal", 33, 34))
sketch1.addConstraint(Sketcher.Constraint("Equal", 7, 35))
sketch1.addConstraint(Sketcher.Constraint("Equal", 35, 37))
sketch1.addConstraint(Sketcher.Constraint("Equal", 37, 39))
sketch1.addConstraint(Sketcher.Constraint("Equal", 39, 41))
sketch1.addConstraint(Sketcher.Constraint("Equal", 41, 44))
sketch1.addConstraint(Sketcher.Constraint("Equal", 31, 48))
sketch1.addConstraint(Sketcher.Constraint("Equal", 23, 50))
sketch1.addConstraint(Sketcher.Constraint("Equal", 50, 52))
sketch1.addConstraint(Sketcher.Constraint("Equal", 48, 54))
sketch1.addConstraint(Sketcher.Constraint("Equal", 54, 56))
sketch1.addConstraint(Sketcher.Constraint("Equal", 56, 58))
sketch1.addConstraint(Sketcher.Constraint("Equal", 58, 60))
sketch1.addConstraint(Sketcher.Constraint("Equal", 52, 62))
sketch1.addConstraint(Sketcher.Constraint("Equal", 62, 64))
sketch1.addConstraint(Sketcher.Constraint("Equal", 60, 66))
sketch1.addConstraint(Sketcher.Constraint("Equal", 66, 68))
sketch1.addConstraint(Sketcher.Constraint("Equal", 68, 70))
sketch1.addConstraint(Sketcher.Constraint("Equal", 34, 71))
sketch1.addConstraint(Sketcher.Constraint("Equal", 64, 72))
sketch1.addConstraint(Sketcher.Constraint("Equal", 72, 74))
sketch1.addConstraint(Sketcher.Constraint("Equal", 74, 76))
sketch1.addConstraint(Sketcher.Constraint("Equal", 76, 78))
sketch1.addConstraint(Sketcher.Constraint("Equal", 71, 80))
sketch1.addConstraint(Sketcher.Constraint("Equal", 80, 81))
sketch1.addConstraint(Sketcher.Constraint("Symmetric", 0, 2, 2, 2, -1, 1))
sketch1.addConstraint(Sketcher.Constraint("Symmetric", 5, 3, 44, 3, -1))
sketch1.addConstraint(Sketcher.Constraint("Symmetric", 4, 3, 71, 3, -1))
sketch1.addConstraint(Sketcher.Constraint("Symmetric", 34, 3, 81, 3, -1))
sketch1.addConstraint(Sketcher.Constraint("PointOnObject", 80, 3, -2))
sketch1.addConstraint(Sketcher.Constraint("Horizontal", 7, 3, 9, 3))
sketch1.addConstraint(Sketcher.Constraint("Horizontal", 13, 3, 19, 3))
sketch1.addConstraint(Sketcher.Constraint("Horizontal", 9, 3, 23, 3))
sketch1.addConstraint(Sketcher.Constraint("Horizontal", 5, 3, 35, 3))
sketch1.addConstraint(Sketcher.Constraint("Horizontal", 54, 3, 60, 3))
sketch1.addConstraint(Sketcher.Constraint("Horizontal", 50, 3, 64, 3))
sketch1.addConstraint(Sketcher.Constraint("Horizontal", 46, 3, 72, 3))
sketch1.addConstraint(Sketcher.Constraint("Horizontal", 62, 3, 76, 3))
sketch1.addConstraint(Sketcher.Constraint("Horizontal", 71, 3, 52, 1))
sketch1.addConstraint(Sketcher.Constraint("Vertical", 19, 3, 25, 3))
sketch1.addConstraint(Sketcher.Constraint("Vertical", 15, 3, 29, 3))
sketch1.addConstraint(Sketcher.Constraint("Vertical", 25, 3, 48, 3))
sketch1.addConstraint(Sketcher.Constraint("Vertical", 23, 3, 50, 3))
sketch1.addConstraint(Sketcher.Constraint("Vertical", 48, 3, 54, 3))
sketch1.addConstraint(Sketcher.Constraint("Vertical", 29, 3, 58, 3))
sketch1.addConstraint(Sketcher.Constraint("Vertical", 11, 3, 62, 3))
sketch1.addConstraint(Sketcher.Constraint("Vertical", 60, 3, 66, 3))
sketch1.addConstraint(Sketcher.Constraint("Vertical", 40, 2, 74, 1))
sketch1.addConstraint(Sketcher.Constraint("Equal", 12, 20))
sketch1.addConstraint(Sketcher.Constraint("Equal", 18, 26))
sketch1.addConstraint(Sketcher.Constraint("Equal", 8, 43))
sketch1.addConstraint(Sketcher.Constraint("Equal", 30, 47))
sketch1.addConstraint(Sketcher.Constraint("Equal", 22, 51))
sketch1.addConstraint(Sketcher.Constraint("Equal", 47, 55))
sketch1.addConstraint(Sketcher.Constraint("Radius", 5, Q("5 mm")))
sketch1.addConstraint(Sketcher.Constraint("Radius", 9, Q("2 mm")))
sketch1.addConstraint(Sketcher.Constraint("Radius", 13, Q("1 mm")))
sketch1.addConstraint(Sketcher.Constraint("Diameter", 4, Q("3.2 mm")))
sketch1.addConstraint(Sketcher.Constraint("DistanceX", 0, 2, 0, 1, Q("75 mm")))
sketch1.addConstraint(Sketcher.Constraint("DistanceX", 36, 2, 36, 1, Q("2 mm")))
sketch1.addConstraint(Sketcher.Constraint("DistanceY", 1, 2, 1, 1, Q("115 mm")))
sketch1.addConstraint(Sketcher.Constraint("DistanceY", 38, 1, 38, 2, Q("30 mm")))
sketch1.addConstraint(Sketcher.Constraint("DistanceY", 14, 2, 14, 1, Q("3.5 mm")))
sketch1.addConstraint(Sketcher.Constraint("DistanceX", -1, 1, 33, 3, Q("20 mm")))
sketch1.addConstraint(Sketcher.Constraint("DistanceY", -1, 1, 68, 3, Q("8 mm")))
sketch1.addConstraint(Sketcher.Constraint("DistanceY", 27, 1, -1, 1, Q("2 mm")))
sketch1.addConstraint(Sketcher.Constraint("DistanceY", 39, 1, -1, 1, Q("5.5 mm")))
sketch1.addConstraint(Sketcher.Constraint("DistanceX", 73, 2, 73, 1, Q("4 mm")))
sketch1.addConstraint(Sketcher.Constraint("DistanceY", 10, 2, 10, 1, Q("16 mm")))
sketch1.addConstraint(Sketcher.Constraint("DistanceX", 16, 2, 16, 1, Q("1.5 mm")))
sketch1.addConstraint(Sketcher.Constraint("DistanceX", 12, 2, 12, 1, Q("1.25 mm")))
sketch1.addConstraint(Sketcher.Constraint("DistanceX", 4, 3, -1, 1, Q("32.6 mm")))
sketch1.addConstraint(Sketcher.Constraint("DistanceX", 5, 3, -1, 1, Q("23.5 mm")))
sketch1.addConstraint(Sketcher.Constraint("DistanceX", 9, 3, -1, 1, Q("1.4 mm")))
sketch1.addConstraint(Sketcher.Constraint("DistanceY", 33, 3, -1, 1, Q("51.5 mm")))
sketch1.addConstraint(Sketcher.Constraint("DistanceX", -1, 1, 34, 3, Q("32.6 mm")))
sketch1.addConstraint(Sketcher.Constraint("DistanceY", 34, 3, -1, 1, Q("52.5 mm")))
sketch1.addConstraint(Sketcher.Constraint("DistanceX", -1, 1, 35, 3, Q("22.5 mm")))
sketch1.addConstraint(Sketcher.Constraint("DistanceY", -1, 1, 80, 3, Q("51.5 mm")))
pad1 = body.newObject("PartDesign::Pad", "Pad")
pad1.Profile = sketch1
pad1.Length = 1

doc.recompute()
